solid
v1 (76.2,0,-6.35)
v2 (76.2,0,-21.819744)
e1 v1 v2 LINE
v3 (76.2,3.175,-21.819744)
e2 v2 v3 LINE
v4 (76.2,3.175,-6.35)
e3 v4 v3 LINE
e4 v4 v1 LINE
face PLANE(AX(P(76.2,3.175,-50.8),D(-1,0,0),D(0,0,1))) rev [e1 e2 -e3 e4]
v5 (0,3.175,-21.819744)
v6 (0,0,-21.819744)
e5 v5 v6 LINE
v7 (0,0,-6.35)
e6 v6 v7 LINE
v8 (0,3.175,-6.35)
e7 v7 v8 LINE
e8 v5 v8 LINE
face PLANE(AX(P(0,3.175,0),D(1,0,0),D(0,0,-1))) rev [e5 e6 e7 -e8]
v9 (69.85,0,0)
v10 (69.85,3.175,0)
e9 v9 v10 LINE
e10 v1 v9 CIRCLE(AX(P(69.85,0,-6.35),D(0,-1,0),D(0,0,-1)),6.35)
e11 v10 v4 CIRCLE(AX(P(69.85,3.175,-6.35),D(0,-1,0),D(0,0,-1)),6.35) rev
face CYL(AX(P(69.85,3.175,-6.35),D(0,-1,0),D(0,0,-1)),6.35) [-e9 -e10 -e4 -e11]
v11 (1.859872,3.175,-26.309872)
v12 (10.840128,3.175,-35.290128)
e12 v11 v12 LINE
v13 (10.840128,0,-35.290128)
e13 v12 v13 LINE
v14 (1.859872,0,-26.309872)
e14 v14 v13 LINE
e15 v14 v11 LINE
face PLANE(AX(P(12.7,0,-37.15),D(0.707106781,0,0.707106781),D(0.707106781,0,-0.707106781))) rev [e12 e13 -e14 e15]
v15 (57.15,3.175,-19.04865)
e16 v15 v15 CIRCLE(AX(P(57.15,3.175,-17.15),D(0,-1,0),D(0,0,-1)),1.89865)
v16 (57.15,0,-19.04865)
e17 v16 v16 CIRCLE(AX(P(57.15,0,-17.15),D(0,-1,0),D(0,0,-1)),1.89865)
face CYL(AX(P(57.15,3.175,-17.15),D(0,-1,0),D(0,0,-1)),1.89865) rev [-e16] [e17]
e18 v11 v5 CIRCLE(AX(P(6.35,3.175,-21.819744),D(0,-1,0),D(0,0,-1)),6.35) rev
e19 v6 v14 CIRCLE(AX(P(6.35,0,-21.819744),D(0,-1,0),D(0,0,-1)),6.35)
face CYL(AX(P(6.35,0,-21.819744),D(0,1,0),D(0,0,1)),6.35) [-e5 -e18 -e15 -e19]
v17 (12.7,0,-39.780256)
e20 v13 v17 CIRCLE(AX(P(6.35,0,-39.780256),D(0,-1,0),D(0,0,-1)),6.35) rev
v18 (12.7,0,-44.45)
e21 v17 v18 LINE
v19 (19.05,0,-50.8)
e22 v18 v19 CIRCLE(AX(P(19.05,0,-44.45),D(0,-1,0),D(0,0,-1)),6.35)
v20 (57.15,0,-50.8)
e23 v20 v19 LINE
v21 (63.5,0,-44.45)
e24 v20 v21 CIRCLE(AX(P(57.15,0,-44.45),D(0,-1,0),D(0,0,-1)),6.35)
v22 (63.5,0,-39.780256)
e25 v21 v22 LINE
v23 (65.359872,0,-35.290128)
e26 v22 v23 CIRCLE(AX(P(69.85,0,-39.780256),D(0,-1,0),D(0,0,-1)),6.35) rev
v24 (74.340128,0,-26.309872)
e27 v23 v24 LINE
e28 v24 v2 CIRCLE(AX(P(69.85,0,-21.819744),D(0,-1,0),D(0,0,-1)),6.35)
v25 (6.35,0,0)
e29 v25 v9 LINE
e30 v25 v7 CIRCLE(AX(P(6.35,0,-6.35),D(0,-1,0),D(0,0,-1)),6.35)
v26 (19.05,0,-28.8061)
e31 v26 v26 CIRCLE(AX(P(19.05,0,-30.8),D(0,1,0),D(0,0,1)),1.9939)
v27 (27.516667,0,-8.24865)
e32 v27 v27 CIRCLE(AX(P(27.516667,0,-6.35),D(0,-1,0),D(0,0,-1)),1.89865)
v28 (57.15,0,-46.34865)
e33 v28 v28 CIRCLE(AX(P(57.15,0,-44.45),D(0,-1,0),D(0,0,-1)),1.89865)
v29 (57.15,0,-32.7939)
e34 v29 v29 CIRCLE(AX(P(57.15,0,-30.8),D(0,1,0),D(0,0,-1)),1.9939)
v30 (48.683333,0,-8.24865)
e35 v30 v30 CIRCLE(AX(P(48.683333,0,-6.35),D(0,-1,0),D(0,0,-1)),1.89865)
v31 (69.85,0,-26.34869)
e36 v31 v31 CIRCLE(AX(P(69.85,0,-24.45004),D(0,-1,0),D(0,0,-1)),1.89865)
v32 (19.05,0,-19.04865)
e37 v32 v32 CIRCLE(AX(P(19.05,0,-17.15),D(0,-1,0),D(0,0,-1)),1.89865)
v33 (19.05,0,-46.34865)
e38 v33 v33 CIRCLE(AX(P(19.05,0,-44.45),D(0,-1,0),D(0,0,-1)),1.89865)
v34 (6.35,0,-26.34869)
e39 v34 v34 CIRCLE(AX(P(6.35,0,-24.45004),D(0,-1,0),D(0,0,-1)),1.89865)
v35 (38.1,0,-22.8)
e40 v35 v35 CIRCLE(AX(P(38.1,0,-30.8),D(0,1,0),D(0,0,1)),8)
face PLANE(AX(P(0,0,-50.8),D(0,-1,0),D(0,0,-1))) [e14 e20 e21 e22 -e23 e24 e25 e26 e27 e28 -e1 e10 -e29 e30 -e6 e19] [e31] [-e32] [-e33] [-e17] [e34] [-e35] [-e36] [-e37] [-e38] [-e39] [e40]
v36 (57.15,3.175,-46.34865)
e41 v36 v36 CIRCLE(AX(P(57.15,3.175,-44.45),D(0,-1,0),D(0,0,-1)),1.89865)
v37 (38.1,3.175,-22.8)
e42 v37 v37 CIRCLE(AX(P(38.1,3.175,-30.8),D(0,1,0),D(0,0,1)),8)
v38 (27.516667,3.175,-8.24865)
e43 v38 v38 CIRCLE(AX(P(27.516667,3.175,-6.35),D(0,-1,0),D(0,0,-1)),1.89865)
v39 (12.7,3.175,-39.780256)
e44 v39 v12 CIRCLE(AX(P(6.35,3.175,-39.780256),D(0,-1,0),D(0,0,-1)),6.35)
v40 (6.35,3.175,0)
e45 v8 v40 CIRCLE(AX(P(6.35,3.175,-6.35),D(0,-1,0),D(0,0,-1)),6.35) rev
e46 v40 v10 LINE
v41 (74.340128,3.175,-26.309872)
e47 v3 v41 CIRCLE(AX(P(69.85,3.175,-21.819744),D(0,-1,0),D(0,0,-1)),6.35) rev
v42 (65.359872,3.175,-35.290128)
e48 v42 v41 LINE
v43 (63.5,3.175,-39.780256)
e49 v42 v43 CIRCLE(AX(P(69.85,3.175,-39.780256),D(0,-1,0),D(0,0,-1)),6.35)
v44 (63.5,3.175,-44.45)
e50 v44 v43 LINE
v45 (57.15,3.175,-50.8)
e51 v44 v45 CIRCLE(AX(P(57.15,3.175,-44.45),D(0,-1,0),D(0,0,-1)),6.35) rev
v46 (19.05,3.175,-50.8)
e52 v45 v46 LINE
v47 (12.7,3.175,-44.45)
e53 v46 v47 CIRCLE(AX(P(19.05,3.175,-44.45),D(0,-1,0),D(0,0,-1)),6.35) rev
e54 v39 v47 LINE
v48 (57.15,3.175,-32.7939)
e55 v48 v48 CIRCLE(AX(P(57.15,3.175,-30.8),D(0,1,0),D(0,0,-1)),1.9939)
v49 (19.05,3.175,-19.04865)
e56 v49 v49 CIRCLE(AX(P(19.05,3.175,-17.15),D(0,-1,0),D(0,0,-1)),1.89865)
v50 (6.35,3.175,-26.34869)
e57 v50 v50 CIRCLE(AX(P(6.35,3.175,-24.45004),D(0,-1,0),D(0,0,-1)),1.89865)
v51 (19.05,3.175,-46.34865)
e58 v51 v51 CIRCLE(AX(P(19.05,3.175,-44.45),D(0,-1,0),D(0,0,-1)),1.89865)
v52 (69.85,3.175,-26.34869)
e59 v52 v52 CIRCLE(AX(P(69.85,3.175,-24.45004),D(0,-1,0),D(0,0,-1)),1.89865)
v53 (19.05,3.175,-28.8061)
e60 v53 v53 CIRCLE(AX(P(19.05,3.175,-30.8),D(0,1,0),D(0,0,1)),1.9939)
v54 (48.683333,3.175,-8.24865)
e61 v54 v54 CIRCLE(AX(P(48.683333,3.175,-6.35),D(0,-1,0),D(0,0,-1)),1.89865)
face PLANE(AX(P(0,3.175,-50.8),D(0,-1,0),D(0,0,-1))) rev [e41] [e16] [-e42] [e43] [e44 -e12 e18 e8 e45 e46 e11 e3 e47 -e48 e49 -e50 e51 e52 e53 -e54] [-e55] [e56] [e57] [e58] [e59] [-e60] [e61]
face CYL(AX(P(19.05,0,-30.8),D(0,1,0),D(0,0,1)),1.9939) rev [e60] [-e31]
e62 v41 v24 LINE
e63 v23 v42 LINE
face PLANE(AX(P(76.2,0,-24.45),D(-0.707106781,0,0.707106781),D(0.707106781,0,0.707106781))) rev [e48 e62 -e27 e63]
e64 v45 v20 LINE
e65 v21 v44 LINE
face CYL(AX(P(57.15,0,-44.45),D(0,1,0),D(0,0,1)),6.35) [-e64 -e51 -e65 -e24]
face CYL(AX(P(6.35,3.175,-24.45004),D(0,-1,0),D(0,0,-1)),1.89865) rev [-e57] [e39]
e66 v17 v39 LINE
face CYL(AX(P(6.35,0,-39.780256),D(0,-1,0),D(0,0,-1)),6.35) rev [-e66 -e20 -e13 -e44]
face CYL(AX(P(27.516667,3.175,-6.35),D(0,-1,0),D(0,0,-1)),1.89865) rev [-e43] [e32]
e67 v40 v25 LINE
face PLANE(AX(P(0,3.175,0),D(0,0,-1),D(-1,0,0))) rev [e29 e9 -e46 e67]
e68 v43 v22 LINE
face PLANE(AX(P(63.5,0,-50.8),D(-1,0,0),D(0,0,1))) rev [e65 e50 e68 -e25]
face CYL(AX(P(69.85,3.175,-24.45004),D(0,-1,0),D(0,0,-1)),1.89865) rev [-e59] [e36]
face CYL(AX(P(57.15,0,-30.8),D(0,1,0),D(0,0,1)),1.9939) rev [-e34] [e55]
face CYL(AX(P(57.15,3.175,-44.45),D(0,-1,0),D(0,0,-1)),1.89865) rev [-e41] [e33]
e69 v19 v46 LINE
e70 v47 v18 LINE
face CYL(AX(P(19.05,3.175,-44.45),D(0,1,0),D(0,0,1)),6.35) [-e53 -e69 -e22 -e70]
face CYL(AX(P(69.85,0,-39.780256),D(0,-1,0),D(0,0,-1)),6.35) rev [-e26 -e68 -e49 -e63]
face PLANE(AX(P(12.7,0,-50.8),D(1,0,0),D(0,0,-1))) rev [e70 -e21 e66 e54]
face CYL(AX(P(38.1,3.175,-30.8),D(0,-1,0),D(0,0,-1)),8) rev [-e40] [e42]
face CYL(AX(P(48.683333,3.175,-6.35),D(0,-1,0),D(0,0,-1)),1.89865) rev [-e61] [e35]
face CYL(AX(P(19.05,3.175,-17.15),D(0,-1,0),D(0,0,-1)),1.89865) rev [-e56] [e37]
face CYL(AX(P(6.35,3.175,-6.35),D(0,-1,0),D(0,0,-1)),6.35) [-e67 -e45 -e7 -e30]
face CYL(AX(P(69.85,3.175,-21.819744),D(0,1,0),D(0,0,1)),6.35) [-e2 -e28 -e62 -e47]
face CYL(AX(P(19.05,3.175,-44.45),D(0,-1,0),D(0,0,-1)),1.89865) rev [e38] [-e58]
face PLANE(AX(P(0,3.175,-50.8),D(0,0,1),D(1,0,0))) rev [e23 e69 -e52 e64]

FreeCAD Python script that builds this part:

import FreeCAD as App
import Part
import Sketcher
Q = App.Units.Quantity


def edges_at(feature, points):
    """Names of the edges that pass closest to the given points."""
    edges = feature.Shape.Edges
    near = lambda p: min(range(len(edges)), key=lambda i: edges[i].distToShape(Part.Vertex(*p))[0])
    return sorted({f"Edge{near(p) + 1}" for p in points})

doc = App.newDocument("Part")
params = doc.addObject("Spreadsheet::Sheet", "Params")
for row, (alias, value) in enumerate([
    ("sketch1_width", "3 in"),
    ("sketch1_height", "2 in"),
    ("pad1_length", "0.125 in"),
    ("sketch2_diameter", "0.157 in"),
    ("sketch5_width", "0.5 in"),
    ("fillet_radius", "0.25 in"),
], start=1):
    params.set(f"A{row}", alias)
    params.set(f"B{row}", "=" + value)
    params.setAlias(f"B{row}", alias)

body = doc.addObject("PartDesign::Body", "Body")

# Sketch on XZ plane
sketch1 = doc.addObject("Sketcher::SketchObject", "Sketch")
body.addObject(sketch1)
sketch1.AttachmentSupport = (doc.XZ_Plane, [""])
sketch1.MapMode = "FlatFace"
sketch1.addGeometry(Part.LineSegment(App.Vector(0, 0, 0), App.Vector(76, 0, 0)), False)
sketch1.addGeometry(Part.LineSegment(App.Vector(76, 0, 0), App.Vector(76, -51, 0)), False)
sketch1.addGeometry(Part.LineSegment(App.Vector(76, -51, 0), App.Vector(0, -51, 0)), False)
sketch1.addGeometry(Part.LineSegment(App.Vector(0, -51, 0), App.Vector(0, 0, 0)), False)
sketch1.addGeometry(Part.Circle(App.Vector(38, -31, 0), App.Vector(0, 0, 1), 8), False)
sketch1.addConstraint(Sketcher.Constraint("Coincident", 0, 2, 1, 1))
sketch1.addConstraint(Sketcher.Constraint("Coincident", 1, 2, 2, 1))
sketch1.addConstraint(Sketcher.Constraint("Coincident", 2, 2, 3, 1))
sketch1.addConstraint(Sketcher.Constraint("Coincident", 3, 2, 0, 1))
sketch1.addConstraint(Sketcher.Constraint("Horizontal", 0))
sketch1.addConstraint(Sketcher.Constraint("Vertical", 1))
sketch1.addConstraint(Sketcher.Constraint("Horizontal", 2))
sketch1.addConstraint(Sketcher.Constraint("Vertical", 3))
sketch1.addConstraint(Sketcher.Constraint("Coincident", 3, 2, -1, 1))
sketch1.addConstraint(Sketcher.Constraint("DistanceX", 0, 1, 0, 2, Q("3 in")))
sketch1.addConstraint(Sketcher.Constraint("DistanceY", 1, 2, 1, 1, Q("2 in")))
sketch1.addConstraint(Sketcher.Constraint("DistanceX", -1, 1, 4, 3, Q("1.5 in")))
sketch1.addConstraint(Sketcher.Constraint("Diameter", 4, Q("16 mm")))
sketch1.addConstraint(Sketcher.Constraint("DistanceY", 4, 3, -1, 1, Q("30.8 mm")))
sketch1.setExpression("Constraints[9]", "Params.sketch1_width")
sketch1.setExpression("Constraints[10]", "Params.sketch1_height")
pad1 = doc.addObject("PartDesign::Pad", "Pad")
body.addObject(pad1)
pad1.Profile = sketch1
pad1.setExpression("Length", "Params.pad1_length")
pad1.Reversed = True

# Sketch on XZ plane
sketch2 = doc.addObject("Sketcher::SketchObject", "Sketch001")
body.addObject(sketch2)
sketch2.AttachmentSupport = (doc.XZ_Plane, [""])
sketch2.MapMode = "FlatFace"
sketch2.AttachmentOffset = App.Placement(App.Vector(0, 0, -0.125 * 25.4), App.Rotation())
sketch2.addGeometry(Part.Circle(App.Vector(19.1, -30.8, 0), App.Vector(0, 0, 1), 2), False)
sketch2.addGeometry(Part.Circle(App.Vector(57.1, -30.8, 0), App.Vector(0, 0, 1), 2), False)
sketch2.addConstraint(Sketcher.Constraint("Equal", 0, 1))
sketch2.addConstraint(Sketcher.Constraint("Horizontal", 0, 3, 1, 3))
sketch2.addConstraint(Sketcher.Constraint("Diameter", 0, Q("0.157 in")))
sketch2.addConstraint(Sketcher.Constraint("DistanceX", 0, 3, 1, 3, Q("1.5 in")))
sketch2.addConstraint(Sketcher.Constraint("DistanceX", -1, 1, 0, 3, Q("0.75 in")))
sketch2.addConstraint(Sketcher.Constraint("DistanceY", 0, 3, -1, 1, Q("30.8 mm")))
sketch2.setExpression("Constraints[2]", "Params.sketch2_diameter")
pocket1 = doc.addObject("PartDesign::Pocket", "Pocket")
body.addObject(pocket1)
pocket1.Profile = sketch2
pocket1.Type = "ThroughAll"
pocket1.Reversed = True

# Sketch on XZ plane
sketch3 = doc.addObject("Sketcher::SketchObject", "Sketch002")
body.addObject(sketch3)
sketch3.AttachmentSupport = (doc.XZ_Plane, [""])
sketch3.MapMode = "FlatFace"
sketch3.addGeometry(Part.Circle(App.Vector(57.1, -44.5, 0), App.Vector(0, 0, 1), 1.9), False)
sketch3.addGeometry(Part.Circle(App.Vector(19.1, -44.5, 0), App.Vector(0, 0, 1), 1.9), False)
sketch3.addGeometry(Part.Circle(App.Vector(19.1, -17.1, 0), App.Vector(0, 0, 1), 1.9), False)
sketch3.addGeometry(Part.Circle(App.Vector(57.1, -17.1, 0), App.Vector(0, 0, 1), 1.9), False)
sketch3.addConstraint(Sketcher.Constraint("Equal", 0, 1))
sketch3.addConstraint(Sketcher.Constraint("Equal", 1, 2))
sketch3.addConstraint(Sketcher.Constraint("Equal", 2, 3))
sketch3.addConstraint(Sketcher.Constraint("Horizontal", 0, 3, 1, 3))
sketch3.addConstraint(Sketcher.Constraint("Horizontal", 2, 3, 3, 3))
sketch3.addConstraint(Sketcher.Constraint("Vertical", 1, 3, 2, 3))
sketch3.addConstraint(Sketcher.Constraint("Vertical", 0, 3, 3, 3))
sketch3.addConstraint(Sketcher.Constraint("Diameter", 0, Q("0.1495 in")))
sketch3.addConstraint(Sketcher.Constraint("DistanceX", 1, 3, 0, 3, Q("1.5 in")))
sketch3.addConstraint(Sketcher.Constraint("DistanceX", -1, 1, 0, 3, Q("2.25 in")))
sketch3.addConstraint(Sketcher.Constraint("DistanceY", 0, 3, -1, 1, Q("1.75 in")))
sketch3.addConstraint(Sketcher.Constraint("DistanceY", 2, 3, -1, 1, Q("17.15 mm")))
pocket2 = doc.addObject("PartDesign::Pocket", "Pocket001")
body.addObject(pocket2)
pocket2.Profile = sketch3
pocket2.Type = "ThroughAll"

# Sketch on XZ plane
sketch4 = doc.addObject("Sketcher::SketchObject", "Sketch003")
body.addObject(sketch4)
sketch4.AttachmentSupport = (doc.XZ_Plane, [""])
sketch4.MapMode = "FlatFace"
sketch4.addGeometry(Part.Circle(App.Vector(69.8, -24.5, 0), App.Vector(0, 0, 1), 1.9), False)
sketch4.addGeometry(Part.Circle(App.Vector(48.7, -6.3, 0), App.Vector(0, 0, 1), 1.9), False)
sketch4.addGeometry(Part.Circle(App.Vector(27.5, -6.3, 0), App.Vector(0, 0, 1), 1.9), False)
sketch4.addGeometry(Part.Circle(App.Vector(6.3, -24.5, 0), App.Vector(0, 0, 1), 1.9), False)
sketch4.addConstraint(Sketcher.Constraint("Equal", 0, 1))
sketch4.addConstraint(Sketcher.Constraint("Equal", 1, 2))
sketch4.addConstraint(Sketcher.Constraint("Equal", 2, 3))
sketch4.addConstraint(Sketcher.Constraint("Horizontal", 1, 3, 2, 3))
sketch4.addConstraint(Sketcher.Constraint("Horizontal", 0, 3, 3, 3))
sketch4.addConstraint(Sketcher.Constraint("Diameter", 0, Q("0.1495 in")))
sketch4.addConstraint(Sketcher.Constraint("DistanceX", 3, 3, 0, 3, Q("2.5 in")))
sketch4.addConstraint(Sketcher.Constraint("DistanceX", -1, 1, 0, 3, Q("2.75 in")))
sketch4.addConstraint(Sketcher.Constraint("DistanceY", 1, 3, -1, 1, Q("0.25 in")))
sketch4.addConstraint(Sketcher.Constraint("DistanceY", 0, 3, -1, 1, Q("0.9626 in")))
sketch4.addConstraint(Sketcher.Constraint("DistanceX", -1, 1, 1, 3, Q("48.683333 mm")))
sketch4.addConstraint(Sketcher.Constraint("DistanceX", -1, 1, 2, 3, Q("27.516667 mm")))
pocket3 = doc.addObject("PartDesign::Pocket", "Pocket002")
body.addObject(pocket3)
pocket3.Profile = sketch4
pocket3.Type = "ThroughAll"

# Sketch on XZ plane
sketch5 = doc.addObject("Sketcher::SketchObject", "Sketch004")
body.addObject(sketch5)
sketch5.AttachmentSupport = (doc.XZ_Plane, [""])
sketch5.MapMode = "FlatFace"
sketch5.AttachmentOffset = App.Placement(App.Vector(0, 0, -0.125 * 25.4), App.Rotation())
sketch5.addGeometry(Part.LineSegment(App.Vector(13, -51, 0), App.Vector(0, -51, 0)), False)
sketch5.addGeometry(Part.LineSegment(App.Vector(0, -51, 0), App.Vector(0, -24, 0)), False)
sketch5.addGeometry(Part.LineSegment(App.Vector(0, -24, 0), App.Vector(13, -37, 0)), False)
sketch5.addGeometry(Part.LineSegment(App.Vector(13, -37, 0), App.Vector(13, -51, 0)), False)
sketch5.addGeometry(Part.LineSegment(App.Vector(64, -51, 0), App.Vector(64, -37, 0)), False)
sketch5.addGeometry(Part.LineSegment(App.Vector(64, -37, 0), App.Vector(76, -24, 0)), False)
sketch5.addGeometry(Part.LineSegment(App.Vector(76, -24, 0), App.Vector(76, -51, 0)), False)
sketch5.addGeometry(Part.LineSegment(App.Vector(76, -51, 0), App.Vector(64, -51, 0)), False)
sketch5.addConstraint(Sketcher.Constraint("Coincident", 0, 2, 1, 1))
sketch5.addConstraint(Sketcher.Constraint("Coincident", 1, 2, 2, 1))
sketch5.addConstraint(Sketcher.Constraint("Coincident", 2, 2, 3, 1))
sketch5.addConstraint(Sketcher.Constraint("Coincident", 3, 2, 0, 1))
sketch5.addConstraint(Sketcher.Constraint("Coincident", 4, 2, 5, 1))
sketch5.addConstraint(Sketcher.Constraint("Coincident", 5, 2, 6, 1))
sketch5.addConstraint(Sketcher.Constraint("Coincident", 6, 2, 7, 1))
sketch5.addConstraint(Sketcher.Constraint("Coincident", 7, 2, 4, 1))
sketch5.addConstraint(Sketcher.Constraint("Horizontal", 0))
sketch5.addConstraint(Sketcher.Constraint("Vertical", 1))
sketch5.addConstraint(Sketcher.Constraint("Vertical", 3))
sketch5.addConstraint(Sketcher.Constraint("Vertical", 4))
sketch5.addConstraint(Sketcher.Constraint("Vertical", 6))
sketch5.addConstraint(Sketcher.Constraint("Horizontal", 7))
sketch5.addConstraint(Sketcher.Constraint("PointOnObject", 0, 2, -2))
sketch5.addConstraint(Sketcher.Constraint("Perpendicular", 2, 5))
sketch5.addConstraint(Sketcher.Constraint("Horizontal", 2, 2, 4, 2))
sketch5.addConstraint(Sketcher.Constraint("Horizontal", 1, 2, 5, 2))
sketch5.addConstraint(Sketcher.Constraint("Horizontal", 3, 2, 6, 2))
sketch5.addConstraint(Sketcher.Constraint("Equal", 0, 7))
sketch5.addConstraint(Sketcher.Constraint("DistanceX", 0, 2, 0, 1, Q("0.5 in")))
sketch5.addConstraint(Sketcher.Constraint("DistanceY", 0, 2, -1, 1, Q("2 in")))
sketch5.addConstraint(Sketcher.Constraint("DistanceX", -1, 1, 5, 2, Q("3 in")))
sketch5.addConstraint(Sketcher.Constraint("DistanceY", 1, 1, 1, 2, Q("26.35 mm")))
sketch5.setExpression("Constraints[20]", "Params.sketch5_width")
pocket4 = doc.addObject("PartDesign::Pocket", "Pocket003")
body.addObject(pocket4)
pocket4.Profile = sketch5
pocket4.Type = "ThroughAll"
pocket4.Reversed = True
doc.recompute()

fillet = doc.addObject("PartDesign::Fillet", "Fillet")
body.addObject(fillet)
fillet.Base = (pocket4, edges_at(pocket4, [
    (0, 1.587, -24.45),
    (12.7, 1.587, -50.8),
    (12.7, 1.587, -37.15),
    (63.5, 1.587, -50.8),
    (76.2, 1.587, -24.45),
    (63.5, 1.587, -37.15),
    (76.2, 1.587, 0),
    (0, 1.587, 0),
]))
fillet.setExpression("Radius", "Params.fillet_radius")

doc.recompute()
